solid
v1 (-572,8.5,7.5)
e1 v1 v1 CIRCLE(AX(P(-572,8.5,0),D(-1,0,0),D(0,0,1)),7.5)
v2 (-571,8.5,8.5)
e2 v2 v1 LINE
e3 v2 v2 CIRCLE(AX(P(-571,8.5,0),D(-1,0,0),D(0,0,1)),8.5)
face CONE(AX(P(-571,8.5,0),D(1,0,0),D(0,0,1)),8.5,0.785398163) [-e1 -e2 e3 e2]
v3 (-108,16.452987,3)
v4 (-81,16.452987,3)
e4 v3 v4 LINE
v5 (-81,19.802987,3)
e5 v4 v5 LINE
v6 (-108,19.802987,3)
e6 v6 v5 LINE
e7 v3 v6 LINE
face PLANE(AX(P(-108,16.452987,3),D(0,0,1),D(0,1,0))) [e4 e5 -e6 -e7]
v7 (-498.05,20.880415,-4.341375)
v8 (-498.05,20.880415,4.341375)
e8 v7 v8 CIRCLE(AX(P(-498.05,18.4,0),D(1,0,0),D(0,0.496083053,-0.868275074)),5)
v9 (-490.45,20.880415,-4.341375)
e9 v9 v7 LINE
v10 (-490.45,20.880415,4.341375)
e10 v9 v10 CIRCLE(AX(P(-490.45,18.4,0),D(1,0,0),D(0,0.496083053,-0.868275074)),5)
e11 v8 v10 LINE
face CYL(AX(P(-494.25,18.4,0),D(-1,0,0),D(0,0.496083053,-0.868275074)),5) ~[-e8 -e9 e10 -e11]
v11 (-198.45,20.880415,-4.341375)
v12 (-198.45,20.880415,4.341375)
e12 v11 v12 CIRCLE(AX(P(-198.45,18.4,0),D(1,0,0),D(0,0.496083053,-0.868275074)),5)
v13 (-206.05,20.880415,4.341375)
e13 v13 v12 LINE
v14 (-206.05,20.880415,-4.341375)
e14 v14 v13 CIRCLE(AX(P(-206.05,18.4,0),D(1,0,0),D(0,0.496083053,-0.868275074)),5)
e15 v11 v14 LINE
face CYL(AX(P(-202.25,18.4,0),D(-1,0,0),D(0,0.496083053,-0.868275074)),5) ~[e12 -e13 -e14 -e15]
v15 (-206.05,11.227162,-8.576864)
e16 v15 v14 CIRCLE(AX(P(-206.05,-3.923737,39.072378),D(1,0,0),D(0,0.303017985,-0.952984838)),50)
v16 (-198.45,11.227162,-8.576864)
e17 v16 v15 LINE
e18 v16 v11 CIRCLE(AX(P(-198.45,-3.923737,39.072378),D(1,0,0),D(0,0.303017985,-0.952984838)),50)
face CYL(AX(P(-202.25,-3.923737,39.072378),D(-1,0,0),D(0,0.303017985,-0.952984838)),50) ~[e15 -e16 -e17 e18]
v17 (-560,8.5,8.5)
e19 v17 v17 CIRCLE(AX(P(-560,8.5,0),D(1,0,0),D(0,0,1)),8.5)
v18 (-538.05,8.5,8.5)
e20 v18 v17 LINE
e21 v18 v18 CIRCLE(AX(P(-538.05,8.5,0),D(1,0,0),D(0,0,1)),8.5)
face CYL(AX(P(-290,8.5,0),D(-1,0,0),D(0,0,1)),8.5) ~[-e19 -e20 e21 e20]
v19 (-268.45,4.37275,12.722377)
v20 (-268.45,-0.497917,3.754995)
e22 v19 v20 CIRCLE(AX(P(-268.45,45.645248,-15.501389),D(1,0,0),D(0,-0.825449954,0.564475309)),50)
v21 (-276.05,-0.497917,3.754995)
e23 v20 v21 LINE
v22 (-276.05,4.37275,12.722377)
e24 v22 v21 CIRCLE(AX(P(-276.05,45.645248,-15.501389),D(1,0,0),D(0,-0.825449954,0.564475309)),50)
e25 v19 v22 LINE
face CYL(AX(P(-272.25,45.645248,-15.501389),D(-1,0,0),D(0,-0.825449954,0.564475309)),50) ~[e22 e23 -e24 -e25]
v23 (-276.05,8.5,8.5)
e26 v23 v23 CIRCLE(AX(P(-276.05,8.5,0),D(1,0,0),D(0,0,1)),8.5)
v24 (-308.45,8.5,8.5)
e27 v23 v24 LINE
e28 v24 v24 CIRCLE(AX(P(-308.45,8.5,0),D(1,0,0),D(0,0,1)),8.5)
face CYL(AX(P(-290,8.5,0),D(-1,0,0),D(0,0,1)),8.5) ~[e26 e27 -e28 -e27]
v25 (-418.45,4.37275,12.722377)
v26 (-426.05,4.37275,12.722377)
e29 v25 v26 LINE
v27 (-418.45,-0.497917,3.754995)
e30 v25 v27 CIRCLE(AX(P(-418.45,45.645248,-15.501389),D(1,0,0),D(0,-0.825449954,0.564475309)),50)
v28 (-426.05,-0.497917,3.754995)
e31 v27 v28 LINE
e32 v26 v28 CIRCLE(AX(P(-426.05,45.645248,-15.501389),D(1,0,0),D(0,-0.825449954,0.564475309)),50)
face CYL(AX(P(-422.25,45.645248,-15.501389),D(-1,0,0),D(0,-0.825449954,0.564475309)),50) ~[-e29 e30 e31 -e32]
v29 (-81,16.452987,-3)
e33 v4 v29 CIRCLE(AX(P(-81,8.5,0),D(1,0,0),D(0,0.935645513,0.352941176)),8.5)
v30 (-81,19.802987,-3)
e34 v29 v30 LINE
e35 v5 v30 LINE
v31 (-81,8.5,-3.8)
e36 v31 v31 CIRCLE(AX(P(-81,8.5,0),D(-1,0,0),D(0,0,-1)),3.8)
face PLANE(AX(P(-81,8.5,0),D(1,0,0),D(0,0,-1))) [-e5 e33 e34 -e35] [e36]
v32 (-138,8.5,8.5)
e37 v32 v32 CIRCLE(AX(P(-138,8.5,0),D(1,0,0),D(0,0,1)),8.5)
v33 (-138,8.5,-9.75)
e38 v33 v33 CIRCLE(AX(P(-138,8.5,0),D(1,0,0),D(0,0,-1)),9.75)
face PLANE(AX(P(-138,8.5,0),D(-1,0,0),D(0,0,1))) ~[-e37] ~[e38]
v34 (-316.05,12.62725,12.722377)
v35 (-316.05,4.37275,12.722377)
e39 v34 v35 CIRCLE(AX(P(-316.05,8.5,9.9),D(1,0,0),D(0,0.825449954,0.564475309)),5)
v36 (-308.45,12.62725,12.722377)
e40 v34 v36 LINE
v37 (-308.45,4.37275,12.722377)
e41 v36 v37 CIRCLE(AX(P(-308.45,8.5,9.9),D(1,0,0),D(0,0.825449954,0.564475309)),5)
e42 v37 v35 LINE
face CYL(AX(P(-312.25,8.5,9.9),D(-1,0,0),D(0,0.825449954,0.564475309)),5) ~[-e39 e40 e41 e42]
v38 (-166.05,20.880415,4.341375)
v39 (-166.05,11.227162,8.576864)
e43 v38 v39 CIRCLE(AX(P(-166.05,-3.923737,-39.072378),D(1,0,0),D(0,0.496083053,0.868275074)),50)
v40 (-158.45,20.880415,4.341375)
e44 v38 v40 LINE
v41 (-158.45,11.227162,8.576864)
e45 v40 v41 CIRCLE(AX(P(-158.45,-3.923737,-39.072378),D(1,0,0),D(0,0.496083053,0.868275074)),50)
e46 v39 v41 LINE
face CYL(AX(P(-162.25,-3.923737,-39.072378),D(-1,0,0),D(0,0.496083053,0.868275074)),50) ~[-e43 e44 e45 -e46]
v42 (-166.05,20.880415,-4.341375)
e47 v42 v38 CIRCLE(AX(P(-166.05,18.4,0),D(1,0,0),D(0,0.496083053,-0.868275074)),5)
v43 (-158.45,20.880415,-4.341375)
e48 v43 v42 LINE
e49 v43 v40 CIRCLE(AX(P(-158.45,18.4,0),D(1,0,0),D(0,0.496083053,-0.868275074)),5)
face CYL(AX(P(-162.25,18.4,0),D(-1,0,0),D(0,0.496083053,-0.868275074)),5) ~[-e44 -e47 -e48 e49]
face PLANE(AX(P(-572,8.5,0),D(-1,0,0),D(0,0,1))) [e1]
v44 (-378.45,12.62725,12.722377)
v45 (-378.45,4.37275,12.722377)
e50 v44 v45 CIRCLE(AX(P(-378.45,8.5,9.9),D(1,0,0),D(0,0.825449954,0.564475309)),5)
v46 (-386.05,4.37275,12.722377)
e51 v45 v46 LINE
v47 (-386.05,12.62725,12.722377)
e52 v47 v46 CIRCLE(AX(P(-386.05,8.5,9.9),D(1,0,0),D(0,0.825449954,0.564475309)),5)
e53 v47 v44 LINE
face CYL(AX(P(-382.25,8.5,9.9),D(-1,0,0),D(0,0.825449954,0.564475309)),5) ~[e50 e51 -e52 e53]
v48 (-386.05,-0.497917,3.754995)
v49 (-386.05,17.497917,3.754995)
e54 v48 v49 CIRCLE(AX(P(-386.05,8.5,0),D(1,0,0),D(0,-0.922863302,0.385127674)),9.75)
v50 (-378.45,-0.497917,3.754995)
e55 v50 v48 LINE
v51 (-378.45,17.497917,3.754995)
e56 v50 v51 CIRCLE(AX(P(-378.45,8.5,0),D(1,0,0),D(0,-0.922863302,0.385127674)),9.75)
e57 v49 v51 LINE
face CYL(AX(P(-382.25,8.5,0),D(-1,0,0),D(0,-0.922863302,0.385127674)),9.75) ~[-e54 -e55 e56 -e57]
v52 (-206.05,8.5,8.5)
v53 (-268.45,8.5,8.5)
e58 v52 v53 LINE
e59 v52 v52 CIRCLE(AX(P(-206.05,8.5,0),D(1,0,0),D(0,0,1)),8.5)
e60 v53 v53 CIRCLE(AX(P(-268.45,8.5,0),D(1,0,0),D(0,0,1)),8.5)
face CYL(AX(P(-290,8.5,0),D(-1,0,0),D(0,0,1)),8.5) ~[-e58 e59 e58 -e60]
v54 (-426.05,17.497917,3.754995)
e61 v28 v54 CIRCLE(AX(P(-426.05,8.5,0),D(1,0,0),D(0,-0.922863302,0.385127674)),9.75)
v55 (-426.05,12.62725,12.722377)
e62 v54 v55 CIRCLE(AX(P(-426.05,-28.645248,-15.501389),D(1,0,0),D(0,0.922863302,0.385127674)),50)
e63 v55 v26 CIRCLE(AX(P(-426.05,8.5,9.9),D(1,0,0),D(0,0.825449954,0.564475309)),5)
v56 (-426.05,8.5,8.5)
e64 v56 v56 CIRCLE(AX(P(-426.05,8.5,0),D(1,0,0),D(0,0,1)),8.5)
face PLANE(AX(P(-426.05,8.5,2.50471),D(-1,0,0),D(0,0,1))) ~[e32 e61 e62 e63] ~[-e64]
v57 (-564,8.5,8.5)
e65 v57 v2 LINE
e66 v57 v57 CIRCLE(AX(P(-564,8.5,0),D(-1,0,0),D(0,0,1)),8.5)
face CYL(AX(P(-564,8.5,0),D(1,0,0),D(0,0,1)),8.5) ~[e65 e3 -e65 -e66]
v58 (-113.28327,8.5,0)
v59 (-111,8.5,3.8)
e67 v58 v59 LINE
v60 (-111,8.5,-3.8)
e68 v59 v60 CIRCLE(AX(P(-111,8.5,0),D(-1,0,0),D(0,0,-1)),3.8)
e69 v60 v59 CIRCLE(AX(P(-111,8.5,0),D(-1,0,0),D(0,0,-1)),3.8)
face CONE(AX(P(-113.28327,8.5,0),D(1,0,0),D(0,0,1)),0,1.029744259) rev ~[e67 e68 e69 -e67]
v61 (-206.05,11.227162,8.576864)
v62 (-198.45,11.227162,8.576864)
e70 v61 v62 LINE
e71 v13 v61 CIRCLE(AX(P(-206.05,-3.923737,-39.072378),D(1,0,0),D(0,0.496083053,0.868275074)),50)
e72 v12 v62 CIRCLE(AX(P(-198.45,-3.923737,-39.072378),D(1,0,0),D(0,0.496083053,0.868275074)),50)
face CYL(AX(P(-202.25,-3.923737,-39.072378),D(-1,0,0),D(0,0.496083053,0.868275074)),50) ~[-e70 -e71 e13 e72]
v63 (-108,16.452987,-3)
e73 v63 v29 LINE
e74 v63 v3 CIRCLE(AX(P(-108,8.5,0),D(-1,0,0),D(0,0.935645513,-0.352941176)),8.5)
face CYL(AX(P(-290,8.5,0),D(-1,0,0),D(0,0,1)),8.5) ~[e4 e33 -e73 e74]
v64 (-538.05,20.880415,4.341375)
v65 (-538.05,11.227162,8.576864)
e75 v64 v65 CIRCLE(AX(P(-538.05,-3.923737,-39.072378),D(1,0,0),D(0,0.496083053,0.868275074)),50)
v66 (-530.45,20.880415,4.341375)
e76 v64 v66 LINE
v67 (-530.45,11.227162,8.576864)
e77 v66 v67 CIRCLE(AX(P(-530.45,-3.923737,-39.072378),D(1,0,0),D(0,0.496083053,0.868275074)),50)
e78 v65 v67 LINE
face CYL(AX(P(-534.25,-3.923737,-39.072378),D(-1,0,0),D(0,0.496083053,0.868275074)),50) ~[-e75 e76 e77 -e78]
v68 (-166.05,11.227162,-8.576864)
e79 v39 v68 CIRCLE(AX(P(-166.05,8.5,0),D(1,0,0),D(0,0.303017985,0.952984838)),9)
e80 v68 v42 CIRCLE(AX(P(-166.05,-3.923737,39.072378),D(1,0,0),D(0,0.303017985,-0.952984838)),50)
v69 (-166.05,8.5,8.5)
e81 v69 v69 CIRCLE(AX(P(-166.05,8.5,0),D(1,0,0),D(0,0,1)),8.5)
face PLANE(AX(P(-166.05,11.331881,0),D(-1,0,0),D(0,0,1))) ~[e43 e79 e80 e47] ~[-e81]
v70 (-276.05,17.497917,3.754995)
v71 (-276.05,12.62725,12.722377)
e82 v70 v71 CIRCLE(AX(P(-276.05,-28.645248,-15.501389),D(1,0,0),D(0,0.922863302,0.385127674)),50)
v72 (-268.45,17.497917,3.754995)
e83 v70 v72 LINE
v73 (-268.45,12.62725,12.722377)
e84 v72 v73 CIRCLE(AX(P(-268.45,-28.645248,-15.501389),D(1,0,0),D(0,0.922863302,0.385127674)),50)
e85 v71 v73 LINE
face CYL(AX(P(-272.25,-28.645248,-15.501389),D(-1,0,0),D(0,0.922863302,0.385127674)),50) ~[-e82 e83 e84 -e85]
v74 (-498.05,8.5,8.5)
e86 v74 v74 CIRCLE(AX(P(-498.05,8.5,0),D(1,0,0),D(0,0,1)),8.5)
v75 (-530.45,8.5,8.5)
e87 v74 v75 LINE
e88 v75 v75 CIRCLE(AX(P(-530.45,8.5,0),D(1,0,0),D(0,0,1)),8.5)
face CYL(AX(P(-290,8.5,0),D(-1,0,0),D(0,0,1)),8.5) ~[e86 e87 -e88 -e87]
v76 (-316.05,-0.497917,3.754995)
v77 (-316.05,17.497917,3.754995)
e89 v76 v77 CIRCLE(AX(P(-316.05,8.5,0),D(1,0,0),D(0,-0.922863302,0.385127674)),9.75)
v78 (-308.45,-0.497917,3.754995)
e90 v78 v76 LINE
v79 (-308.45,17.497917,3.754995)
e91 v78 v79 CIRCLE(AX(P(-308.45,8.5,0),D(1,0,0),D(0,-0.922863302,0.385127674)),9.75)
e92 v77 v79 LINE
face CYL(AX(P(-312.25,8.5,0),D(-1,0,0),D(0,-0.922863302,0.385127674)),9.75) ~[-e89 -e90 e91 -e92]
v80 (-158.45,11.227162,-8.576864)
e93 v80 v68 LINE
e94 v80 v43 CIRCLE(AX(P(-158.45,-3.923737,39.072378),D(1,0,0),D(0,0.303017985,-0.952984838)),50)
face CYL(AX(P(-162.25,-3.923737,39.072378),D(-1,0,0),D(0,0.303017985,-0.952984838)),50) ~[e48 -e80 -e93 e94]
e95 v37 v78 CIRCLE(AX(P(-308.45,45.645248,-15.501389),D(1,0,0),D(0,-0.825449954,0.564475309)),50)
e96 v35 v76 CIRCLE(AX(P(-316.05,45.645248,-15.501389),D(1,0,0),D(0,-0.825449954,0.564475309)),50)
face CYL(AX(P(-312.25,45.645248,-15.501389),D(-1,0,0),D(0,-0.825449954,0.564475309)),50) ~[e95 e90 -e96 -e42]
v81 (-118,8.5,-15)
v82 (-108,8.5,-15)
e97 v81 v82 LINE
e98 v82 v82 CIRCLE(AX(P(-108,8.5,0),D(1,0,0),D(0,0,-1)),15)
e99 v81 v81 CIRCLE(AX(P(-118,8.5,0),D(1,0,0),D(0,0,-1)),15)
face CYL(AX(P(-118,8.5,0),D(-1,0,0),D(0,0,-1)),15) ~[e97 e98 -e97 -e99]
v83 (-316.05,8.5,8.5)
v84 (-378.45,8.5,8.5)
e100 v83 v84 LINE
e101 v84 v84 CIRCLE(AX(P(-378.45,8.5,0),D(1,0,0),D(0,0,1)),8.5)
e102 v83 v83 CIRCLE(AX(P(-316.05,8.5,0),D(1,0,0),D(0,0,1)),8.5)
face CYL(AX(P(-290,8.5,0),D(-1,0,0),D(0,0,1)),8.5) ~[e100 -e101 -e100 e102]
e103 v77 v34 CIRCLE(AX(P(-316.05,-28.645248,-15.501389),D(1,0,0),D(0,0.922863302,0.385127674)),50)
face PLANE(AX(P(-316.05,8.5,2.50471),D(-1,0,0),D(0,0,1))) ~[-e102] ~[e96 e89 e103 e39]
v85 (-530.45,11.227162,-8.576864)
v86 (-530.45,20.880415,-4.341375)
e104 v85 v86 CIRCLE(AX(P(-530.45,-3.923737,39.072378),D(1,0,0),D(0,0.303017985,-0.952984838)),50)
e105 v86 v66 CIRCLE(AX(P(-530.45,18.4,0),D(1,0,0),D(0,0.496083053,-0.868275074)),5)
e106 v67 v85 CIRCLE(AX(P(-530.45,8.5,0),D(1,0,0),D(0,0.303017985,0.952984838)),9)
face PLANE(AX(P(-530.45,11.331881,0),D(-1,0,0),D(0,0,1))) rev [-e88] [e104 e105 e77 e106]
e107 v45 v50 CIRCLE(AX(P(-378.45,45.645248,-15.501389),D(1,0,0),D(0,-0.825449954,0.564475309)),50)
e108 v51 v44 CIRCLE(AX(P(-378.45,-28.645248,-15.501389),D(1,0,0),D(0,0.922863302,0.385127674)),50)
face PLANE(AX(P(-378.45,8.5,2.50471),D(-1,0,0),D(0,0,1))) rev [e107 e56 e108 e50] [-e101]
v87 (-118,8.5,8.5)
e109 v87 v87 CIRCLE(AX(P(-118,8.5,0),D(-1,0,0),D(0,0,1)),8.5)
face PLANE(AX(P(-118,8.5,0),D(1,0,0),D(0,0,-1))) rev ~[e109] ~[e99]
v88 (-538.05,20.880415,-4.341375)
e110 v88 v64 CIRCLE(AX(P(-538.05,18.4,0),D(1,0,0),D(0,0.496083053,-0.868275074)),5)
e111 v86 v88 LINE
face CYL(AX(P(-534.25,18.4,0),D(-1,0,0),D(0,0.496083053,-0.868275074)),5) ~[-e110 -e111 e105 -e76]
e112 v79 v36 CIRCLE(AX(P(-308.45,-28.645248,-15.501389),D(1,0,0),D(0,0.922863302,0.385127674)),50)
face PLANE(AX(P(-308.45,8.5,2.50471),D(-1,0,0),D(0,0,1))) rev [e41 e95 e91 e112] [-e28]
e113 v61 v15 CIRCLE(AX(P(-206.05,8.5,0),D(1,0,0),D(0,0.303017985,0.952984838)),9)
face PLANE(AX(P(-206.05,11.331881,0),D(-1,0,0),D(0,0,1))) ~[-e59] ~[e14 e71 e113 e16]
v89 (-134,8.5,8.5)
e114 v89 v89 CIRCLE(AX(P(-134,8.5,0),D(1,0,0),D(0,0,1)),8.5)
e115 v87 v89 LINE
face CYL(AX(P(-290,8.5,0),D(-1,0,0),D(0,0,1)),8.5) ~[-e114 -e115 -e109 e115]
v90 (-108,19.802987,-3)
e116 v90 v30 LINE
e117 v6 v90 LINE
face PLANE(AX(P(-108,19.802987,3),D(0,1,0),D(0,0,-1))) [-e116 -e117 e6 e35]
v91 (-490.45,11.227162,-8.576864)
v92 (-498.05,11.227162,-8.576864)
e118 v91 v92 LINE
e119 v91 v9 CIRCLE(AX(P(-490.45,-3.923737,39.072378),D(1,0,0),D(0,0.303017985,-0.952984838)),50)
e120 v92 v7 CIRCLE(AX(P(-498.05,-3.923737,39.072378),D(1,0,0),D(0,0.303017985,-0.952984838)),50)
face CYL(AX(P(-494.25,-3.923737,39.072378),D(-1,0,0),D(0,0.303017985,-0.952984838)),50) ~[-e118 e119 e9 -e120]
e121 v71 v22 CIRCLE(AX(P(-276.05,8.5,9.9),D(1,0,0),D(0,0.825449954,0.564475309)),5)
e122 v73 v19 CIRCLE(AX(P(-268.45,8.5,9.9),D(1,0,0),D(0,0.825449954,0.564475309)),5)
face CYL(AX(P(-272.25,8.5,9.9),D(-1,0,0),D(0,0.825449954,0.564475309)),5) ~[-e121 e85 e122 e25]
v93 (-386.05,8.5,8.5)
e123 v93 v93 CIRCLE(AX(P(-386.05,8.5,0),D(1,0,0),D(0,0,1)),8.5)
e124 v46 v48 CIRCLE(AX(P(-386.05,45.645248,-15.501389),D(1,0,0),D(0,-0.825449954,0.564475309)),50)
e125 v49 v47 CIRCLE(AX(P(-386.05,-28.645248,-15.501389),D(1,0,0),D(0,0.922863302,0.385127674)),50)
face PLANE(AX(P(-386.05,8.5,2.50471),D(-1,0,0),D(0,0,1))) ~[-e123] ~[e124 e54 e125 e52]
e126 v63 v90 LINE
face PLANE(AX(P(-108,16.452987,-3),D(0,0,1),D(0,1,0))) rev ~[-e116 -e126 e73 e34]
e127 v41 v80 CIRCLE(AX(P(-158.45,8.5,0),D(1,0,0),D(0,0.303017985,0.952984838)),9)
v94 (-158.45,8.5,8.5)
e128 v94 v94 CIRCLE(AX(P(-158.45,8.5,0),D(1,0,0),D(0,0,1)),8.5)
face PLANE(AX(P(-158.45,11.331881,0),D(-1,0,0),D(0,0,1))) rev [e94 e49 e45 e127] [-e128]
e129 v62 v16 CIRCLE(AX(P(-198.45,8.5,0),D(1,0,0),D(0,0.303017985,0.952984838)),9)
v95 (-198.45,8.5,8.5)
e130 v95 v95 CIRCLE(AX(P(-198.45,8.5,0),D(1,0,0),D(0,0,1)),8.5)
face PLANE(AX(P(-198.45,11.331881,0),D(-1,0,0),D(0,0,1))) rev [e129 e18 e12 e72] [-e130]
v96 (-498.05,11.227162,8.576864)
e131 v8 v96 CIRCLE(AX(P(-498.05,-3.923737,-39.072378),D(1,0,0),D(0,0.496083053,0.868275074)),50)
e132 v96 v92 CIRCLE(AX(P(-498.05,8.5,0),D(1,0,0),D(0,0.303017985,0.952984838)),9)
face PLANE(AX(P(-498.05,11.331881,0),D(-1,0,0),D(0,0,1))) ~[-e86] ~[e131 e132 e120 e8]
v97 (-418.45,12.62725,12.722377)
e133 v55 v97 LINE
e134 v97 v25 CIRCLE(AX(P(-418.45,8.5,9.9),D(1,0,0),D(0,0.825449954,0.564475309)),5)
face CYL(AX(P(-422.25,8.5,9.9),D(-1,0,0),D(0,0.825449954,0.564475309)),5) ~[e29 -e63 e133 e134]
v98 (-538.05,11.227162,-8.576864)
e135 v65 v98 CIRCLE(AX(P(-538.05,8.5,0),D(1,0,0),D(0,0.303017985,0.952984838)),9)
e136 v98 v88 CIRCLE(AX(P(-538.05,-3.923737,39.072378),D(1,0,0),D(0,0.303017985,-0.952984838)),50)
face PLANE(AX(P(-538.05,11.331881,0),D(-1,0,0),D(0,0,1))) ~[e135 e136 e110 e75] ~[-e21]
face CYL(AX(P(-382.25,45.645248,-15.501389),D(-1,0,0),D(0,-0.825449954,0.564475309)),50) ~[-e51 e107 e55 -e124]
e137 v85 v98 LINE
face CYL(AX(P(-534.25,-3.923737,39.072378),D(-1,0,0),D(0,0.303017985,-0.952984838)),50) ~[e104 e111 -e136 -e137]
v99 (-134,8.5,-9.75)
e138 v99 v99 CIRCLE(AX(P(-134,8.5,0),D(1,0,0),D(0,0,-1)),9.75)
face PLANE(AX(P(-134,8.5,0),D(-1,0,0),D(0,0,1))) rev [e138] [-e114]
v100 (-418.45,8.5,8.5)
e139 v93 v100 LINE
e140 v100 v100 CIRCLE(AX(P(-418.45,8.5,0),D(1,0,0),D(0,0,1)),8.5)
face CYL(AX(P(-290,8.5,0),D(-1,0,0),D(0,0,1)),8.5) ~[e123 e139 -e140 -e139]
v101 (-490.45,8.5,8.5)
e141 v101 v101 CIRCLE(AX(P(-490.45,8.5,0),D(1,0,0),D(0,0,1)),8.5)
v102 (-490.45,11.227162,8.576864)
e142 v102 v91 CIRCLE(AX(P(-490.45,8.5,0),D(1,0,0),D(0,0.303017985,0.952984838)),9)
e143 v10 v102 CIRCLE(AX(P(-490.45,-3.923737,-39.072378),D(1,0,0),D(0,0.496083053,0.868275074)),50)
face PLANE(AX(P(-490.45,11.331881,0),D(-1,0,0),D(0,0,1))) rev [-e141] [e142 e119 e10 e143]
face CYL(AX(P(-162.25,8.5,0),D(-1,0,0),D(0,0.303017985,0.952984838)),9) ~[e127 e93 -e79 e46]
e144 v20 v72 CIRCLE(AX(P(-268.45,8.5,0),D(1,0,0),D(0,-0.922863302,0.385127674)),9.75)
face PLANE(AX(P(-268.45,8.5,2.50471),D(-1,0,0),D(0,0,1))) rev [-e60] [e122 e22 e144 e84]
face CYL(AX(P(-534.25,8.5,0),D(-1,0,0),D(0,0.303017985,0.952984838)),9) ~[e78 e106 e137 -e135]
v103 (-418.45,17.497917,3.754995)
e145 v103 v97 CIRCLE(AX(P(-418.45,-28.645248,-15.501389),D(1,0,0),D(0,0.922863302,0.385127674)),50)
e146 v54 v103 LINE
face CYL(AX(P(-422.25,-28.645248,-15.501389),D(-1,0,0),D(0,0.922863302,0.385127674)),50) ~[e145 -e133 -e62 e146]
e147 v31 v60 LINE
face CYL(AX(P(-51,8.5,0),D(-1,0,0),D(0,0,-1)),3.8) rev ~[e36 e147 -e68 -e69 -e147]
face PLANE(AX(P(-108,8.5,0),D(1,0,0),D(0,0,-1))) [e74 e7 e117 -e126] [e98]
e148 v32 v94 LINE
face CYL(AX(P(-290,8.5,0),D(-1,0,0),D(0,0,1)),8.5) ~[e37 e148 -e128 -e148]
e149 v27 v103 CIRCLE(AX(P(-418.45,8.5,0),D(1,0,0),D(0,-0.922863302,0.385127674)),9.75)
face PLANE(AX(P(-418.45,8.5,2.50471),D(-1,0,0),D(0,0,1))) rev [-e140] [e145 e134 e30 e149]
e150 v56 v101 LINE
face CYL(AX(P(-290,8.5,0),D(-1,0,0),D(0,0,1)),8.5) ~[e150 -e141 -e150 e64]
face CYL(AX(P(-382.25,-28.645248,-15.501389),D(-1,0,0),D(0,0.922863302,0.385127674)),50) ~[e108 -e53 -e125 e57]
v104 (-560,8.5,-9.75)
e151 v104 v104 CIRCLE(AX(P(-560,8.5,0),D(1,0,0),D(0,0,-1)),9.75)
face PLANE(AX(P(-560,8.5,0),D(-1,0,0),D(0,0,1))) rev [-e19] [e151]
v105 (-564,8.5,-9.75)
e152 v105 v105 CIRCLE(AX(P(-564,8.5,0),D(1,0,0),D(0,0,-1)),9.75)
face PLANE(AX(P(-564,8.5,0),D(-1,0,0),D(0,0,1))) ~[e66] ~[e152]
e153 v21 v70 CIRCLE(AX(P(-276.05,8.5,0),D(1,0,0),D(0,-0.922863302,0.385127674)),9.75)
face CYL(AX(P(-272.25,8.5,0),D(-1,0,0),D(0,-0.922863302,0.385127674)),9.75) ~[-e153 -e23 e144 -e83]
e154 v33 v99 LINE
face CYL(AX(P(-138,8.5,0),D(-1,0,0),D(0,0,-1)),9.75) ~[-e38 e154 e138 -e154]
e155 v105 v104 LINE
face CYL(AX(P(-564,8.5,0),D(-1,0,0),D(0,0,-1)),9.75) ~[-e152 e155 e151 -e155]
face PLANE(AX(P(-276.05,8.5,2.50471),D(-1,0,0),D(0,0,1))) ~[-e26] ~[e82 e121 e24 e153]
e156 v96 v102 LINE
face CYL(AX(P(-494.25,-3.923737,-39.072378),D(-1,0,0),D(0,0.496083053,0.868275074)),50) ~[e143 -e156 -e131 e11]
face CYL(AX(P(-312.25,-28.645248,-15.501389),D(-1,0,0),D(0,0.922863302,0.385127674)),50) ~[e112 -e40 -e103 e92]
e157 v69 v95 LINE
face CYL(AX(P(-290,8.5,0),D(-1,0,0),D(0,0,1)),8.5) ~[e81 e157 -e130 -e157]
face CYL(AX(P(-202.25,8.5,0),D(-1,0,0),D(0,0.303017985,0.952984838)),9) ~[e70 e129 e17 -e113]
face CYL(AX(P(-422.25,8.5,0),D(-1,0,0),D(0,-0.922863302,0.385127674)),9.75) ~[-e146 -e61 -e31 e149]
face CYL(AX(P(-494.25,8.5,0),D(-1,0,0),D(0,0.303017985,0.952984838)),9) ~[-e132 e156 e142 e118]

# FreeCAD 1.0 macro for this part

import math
import FreeCAD as App
import Part
import Sketcher
from FreeCAD import Vector
Q = App.Units.Quantity


def edges_at(feature, points):
    """Names of the edges that pass closest to the given points."""
    edges = feature.Shape.Edges
    near = lambda p: min(range(len(edges)), key=lambda i: edges[i].distToShape(Part.Vertex(*p))[0])
    return sorted({f"Edge{near(p) + 1}" for p in points})

doc = App.newDocument("Part")
params = doc.addObject("Spreadsheet::Sheet", "Params")
for row, (alias, value) in enumerate([
    ("sketch1_width", "580 mm"),
    ("sketch1_height", "8.5 mm"),
    ("revolution_angle", "360 deg"),
    ("sketch2_diameter", "19.5 mm"),
    ("pad1_length", "4 mm"),
    ("linearpattern_pitch", "442 mm"),
    ("sketch3_radius", "9 mm"),
    ("sketch3_radius2", "50 mm"),
    ("sketch3_radius3", "5 mm"),
    ("pad2_length", "7.6 mm"),
    ("linearpattern2_pitch", "40 mm"),
    ("linearpattern3_pitch", "332 mm"),
    ("sketch4_radius", "9 mm"),
    ("sketch4_radius2", "50 mm"),
    ("sketch4_radius3", "5 mm"),
    ("pad3_length", "7.6 mm"),
    ("sketch5_diameter", "17 mm"),
    ("sketch5_radius", "5 mm"),
    ("sketch5_radius2", "50 mm"),
    ("sketch5_radius3", "9.75 mm"),
    ("pad4_length", "7.6 mm"),
    ("linearpattern4_pitch", "40 mm"),
    ("linearpattern5_pitch", "110 mm"),
    ("sketch6_diameter", "17 mm"),
    ("sketch6_radius", "5 mm"),
    ("sketch6_radius2", "50 mm"),
    ("sketch6_radius3", "9.75 mm"),
    ("pad5_length", "7.6 mm"),
    ("sketch7_diameter", "20 mm"),
    ("pocket1_length", "36 mm"),
    ("sketch8_diameter", "19.5 mm"),
    ("pad6_length", "4 mm"),
    ("sketch9_diameter", "17 mm"),
    ("pad7_length", "8 mm"),
    ("chamfer_size", "1 mm"),
    ("sketch10_diameter", "30 mm"),
    ("pad8_length", "5 mm"),
    ("pad8_length2", "5 mm"),
    ("sketch11_height", "6 mm"),
    ("sketch11_width", "3.35 mm"),
    ("pad9_length", "40 mm"),
    ("pocket2_length", "81 mm"),
    ("sketch13_diameter", "7.6 mm"),
    ("hole_diameter", "7.6 mm"),
    ("hole_depth", "30 mm"),
], start=1):
    params.set(f"A{row}", alias)
    params.set(f"B{row}", "=" + value)
    params.setAlias(f"B{row}", alias)

body = doc.addObject("PartDesign::Body", "Body")

# Sketch on XY plane
sketch1 = body.newObject("Sketcher::SketchObject", "Sketch")
sketch1.AttachmentSupport = (doc.getObject("XY_Plane"), [""])
sketch1.MapMode = "FlatFace"
sketch1.addGeometry([
    Part.LineSegment(Vector(0, 8.5, 0), Vector(0, 0, 0)),
    Part.LineSegment(Vector(0, 0, 0), Vector(580, 0, 0)),
    Part.LineSegment(Vector(580, 0, 0), Vector(580, 8.5, 0)),
    Part.LineSegment(Vector(580, 8.5, 0), Vector(0, 8.5, 0)),
], False)
sketch1.addGeometry(Part.LineSegment(Vector(0, 8.5, 0), Vector(580, 8.5, 0)), True)  # axis
sketch1.addConstraint([
    Sketcher.Constraint("Coincident", 0, 2, 1, 1),
    Sketcher.Constraint("Coincident", 1, 2, 2, 1),
    Sketcher.Constraint("Coincident", 2, 2, 3, 1),
    Sketcher.Constraint("Coincident", 3, 2, 0, 1),
    Sketcher.Constraint("Vertical", 0),
    Sketcher.Constraint("Horizontal", 1),
    Sketcher.Constraint("Vertical", 2),
    Sketcher.Constraint("Horizontal", 3),
    Sketcher.Constraint("Horizontal", 4),
    Sketcher.Constraint("Coincident", 0, 2, -1, 1),
    Sketcher.Constraint("Coincident", 4, 1, 3, 2),
    Sketcher.Constraint("Vertical", 1, 2, 4, 2),
    Sketcher.Constraint("DistanceX", 1, 1, 1, 2, Q("580 mm")),
    Sketcher.Constraint("DistanceY", 0, 2, 0, 1, Q("8.5 mm")),
])
sketch1.setExpression("Constraints[12]", "Params.sketch1_width")
sketch1.setExpression("Constraints[13]", "Params.sketch1_height")
revolution = body.newObject("PartDesign::Revolution", "Revolution")
revolution.Profile = sketch1
revolution.ReferenceAxis = (sketch1, ["Axis0"])
revolution.setExpression("Angle", "Params.revolution_angle")

# Sketch on YZ plane
sketch2 = body.newObject("Sketcher::SketchObject", "Sketch001")
sketch2.AttachmentSupport = (doc.getObject("YZ_Plane"), [""])
sketch2.MapMode = "FlatFace"
sketch2.AttachmentOffset = App.Placement(Vector(0, 0, 580), App.Rotation())
sketch2.addGeometry(Part.Circle(Vector(8.5, 0, 0), Vector(0, 0, 1), 9.75), False)
sketch2.addConstraint([
    Sketcher.Constraint("PointOnObject", 0, 3, -1),
    Sketcher.Constraint("Diameter", 0, Q("19.5 mm")),
    Sketcher.Constraint("DistanceX", -1, 1, 0, 3, Q("8.5 mm")),
])
sketch2.setExpression("Constraints[1]", "Params.sketch2_diameter")
pad1 = body.newObject("PartDesign::Pad", "Pad")
pad1.Profile = sketch2
pad1.setExpression("Length", "Params.pad1_length")
pad1.Reversed = True
doc.recompute()

linearpattern = body.newObject("PartDesign::LinearPattern", "LinearPattern")
linearpattern.Originals = [pad1]
linearpattern.Direction = (doc.getObject("X_Axis"), [""])
linearpattern.Mode = "offset"
linearpattern.setExpression("Offset", "Params.linearpattern_pitch")
linearpattern.Occurrences = 2
linearpattern.Reversed = True
body.Tip = linearpattern

# Sketch on YZ plane
sketch3 = body.newObject("Sketcher::SketchObject", "Sketch002")
sketch3.AttachmentSupport = (doc.getObject("YZ_Plane"), [""])
sketch3.MapMode = "FlatFace"
sketch3.AttachmentOffset = App.Placement(Vector(0, 0, 162.25), App.Rotation())
sketch3.addGeometry([
    Part.ArcOfCircle(Part.Circle(Vector(8.5, 0, 0), Vector(0, 0, 1), 9), math.radians(72.361039), math.radians(287.638961)),
    Part.ArcOfCircle(Part.Circle(Vector(-3.923737, 39.072378, 0), Vector(0, 0, 1), 50), math.radians(-72.361039), math.radians(-60.258807)),
    Part.ArcOfCircle(Part.Circle(Vector(18.4, 0, 0), Vector(0, 0, 1), 5), math.radians(-60.258807), math.radians(60.258807)),
    Part.ArcOfCircle(Part.Circle(Vector(-3.923737, -39.072378, 0), Vector(0, 0, 1), 50), math.radians(60.258807), math.radians(72.361039)),
], False)
sketch3.addConstraint([
    Sketcher.Constraint("Tangent", 0, 2, 1, 1),
    Sketcher.Constraint("Tangent", 1, 2, 2, 1),
    Sketcher.Constraint("Tangent", 2, 2, 3, 1),
    Sketcher.Constraint("Tangent", 3, 2, 0, 1),
    Sketcher.Constraint("Equal", 1, 3),
    Sketcher.Constraint("Symmetric", 1, 3, 3, 3, -1),
    Sketcher.Constraint("Radius", 0, Q("9 mm")),
    Sketcher.Constraint("Radius", 1, Q("50 mm")),
    Sketcher.Constraint("Radius", 2, Q("5 mm")),
    Sketcher.Constraint("DistanceX", -1, 1, 0, 3, Q("8.5 mm")),
    Sketcher.Constraint("DistanceX", -1, 1, 2, 3, Q("18.4 mm")),
])
sketch3.setExpression("Constraints[6]", "Params.sketch3_radius")
sketch3.setExpression("Constraints[7]", "Params.sketch3_radius2")
sketch3.setExpression("Constraints[8]", "Params.sketch3_radius3")
pad2 = body.newObject("PartDesign::Pad", "Pad001")
pad2.Profile = sketch3
pad2.setExpression("Length", "Params.pad2_length")
pad2.Midplane = True
doc.recompute()

linearpattern2 = body.newObject("PartDesign::LinearPattern", "LinearPattern001")
linearpattern2.Originals = [pad2]
linearpattern2.Direction = (doc.getObject("X_Axis"), [""])
linearpattern2.Mode = "offset"
linearpattern2.setExpression("Offset", "Params.linearpattern2_pitch")
linearpattern2.Occurrences = 2
body.Tip = linearpattern2
doc.recompute()

linearpattern3 = body.newObject("PartDesign::LinearPattern", "LinearPattern002")
linearpattern3.Originals = [pad2]
linearpattern3.Direction = (doc.getObject("X_Axis"), [""])
linearpattern3.Mode = "offset"
linearpattern3.setExpression("Offset", "Params.linearpattern3_pitch")
linearpattern3.Occurrences = 2
body.Tip = linearpattern3

# Sketch on YZ plane
sketch4 = body.newObject("Sketcher::SketchObject", "Sketch003")
sketch4.AttachmentSupport = (doc.getObject("YZ_Plane"), [""])
sketch4.MapMode = "FlatFace"
sketch4.AttachmentOffset = App.Placement(Vector(0, 0, 534.25), App.Rotation())
sketch4.addGeometry([
    Part.ArcOfCircle(Part.Circle(Vector(8.5, 0, 0), Vector(0, 0, 1), 9), math.radians(72.361039), math.radians(287.638961)),
    Part.ArcOfCircle(Part.Circle(Vector(-3.923737, 39.072378, 0), Vector(0, 0, 1), 50), math.radians(-72.361039), math.radians(-60.258807)),
    Part.ArcOfCircle(Part.Circle(Vector(18.4, 0, 0), Vector(0, 0, 1), 5), math.radians(-60.258807), math.radians(60.258807)),
    Part.ArcOfCircle(Part.Circle(Vector(-3.923737, -39.072378, 0), Vector(0, 0, 1), 50), math.radians(60.258807), math.radians(72.361039)),
], False)
sketch4.addConstraint([
    Sketcher.Constraint("Tangent", 0, 2, 1, 1),
    Sketcher.Constraint("Tangent", 1, 2, 2, 1),
    Sketcher.Constraint("Tangent", 2, 2, 3, 1),
    Sketcher.Constraint("Tangent", 3, 2, 0, 1),
    Sketcher.Constraint("Equal", 1, 3),
    Sketcher.Constraint("Symmetric", 1, 3, 3, 3, -1),
    Sketcher.Constraint("Radius", 0, Q("9 mm")),
    Sketcher.Constraint("Radius", 1, Q("50 mm")),
    Sketcher.Constraint("Radius", 2, Q("5 mm")),
    Sketcher.Constraint("DistanceX", -1, 1, 0, 3, Q("8.5 mm")),
    Sketcher.Constraint("DistanceX", -1, 1, 2, 3, Q("18.4 mm")),
])
sketch4.setExpression("Constraints[6]", "Params.sketch4_radius")
sketch4.setExpression("Constraints[7]", "Params.sketch4_radius2")
sketch4.setExpression("Constraints[8]", "Params.sketch4_radius3")
pad3 = body.newObject("PartDesign::Pad", "Pad002")
pad3.Profile = sketch4
pad3.setExpression("Length", "Params.pad3_length")
pad3.Midplane = True

# Sketch on YZ plane
sketch5 = body.newObject("Sketcher::SketchObject", "Sketch004")
sketch5.AttachmentSupport = (doc.getObject("YZ_Plane"), [""])
sketch5.MapMode = "FlatFace"
sketch5.AttachmentOffset = App.Placement(Vector(0, 0, 272.25), App.Rotation())
sketch5.addGeometry([
    Part.ArcOfCircle(Part.Circle(Vector(8.5, 9.9, 0), Vector(0, 0, 1), 5), math.radians(34.365864), math.radians(145.634136)),  # 0
    Part.ArcOfCircle(Part.Circle(Vector(45.645248, -15.501389, 0), Vector(0, 0, 1), 50), math.radians(145.634136), math.radians(157.348333)),  # 1
    Part.ArcOfCircle(Part.Circle(Vector(8.5, 0, 0), Vector(0, 0, 1), 9.75), math.radians(157.348333), math.radians(382.651667)),  # 2
    Part.ArcOfCircle(Part.Circle(Vector(-28.645248, -15.501389, 0), Vector(0, 0, 1), 50), math.radians(22.651667), math.radians(34.365864)),  # 3
    Part.Circle(Vector(8.5, 0, 0), Vector(0, 0, 1), 8.5),  # 4
], False)
sketch5.addConstraint([
    Sketcher.Constraint("Tangent", 0, 2, 1, 1),
    Sketcher.Constraint("Tangent", 1, 2, 2, 1),
    Sketcher.Constraint("Tangent", 2, 2, 3, 1),
    Sketcher.Constraint("Tangent", 3, 2, 0, 1),
    Sketcher.Constraint("Coincident", 4, 3, 2, 3),
    Sketcher.Constraint("Equal", 1, 3),
    Sketcher.Constraint("PointOnObject", 2, 3, -1),
    Sketcher.Constraint("Horizontal", 1, 3, 3, 3),
    Sketcher.Constraint("Diameter", 4, Q("17 mm")),
    Sketcher.Constraint("Radius", 0, Q("5 mm")),
    Sketcher.Constraint("Radius", 1, Q("50 mm")),
    Sketcher.Constraint("Radius", 2, Q("9.75 mm")),
    Sketcher.Constraint("DistanceX", -1, 1, 0, 3, Q("8.5 mm")),
    Sketcher.Constraint("DistanceY", -1, 1, 0, 3, Q("9.9 mm")),
])
sketch5.setExpression("Constraints[8]", "Params.sketch5_diameter")
sketch5.setExpression("Constraints[9]", "Params.sketch5_radius")
sketch5.setExpression("Constraints[10]", "Params.sketch5_radius2")
sketch5.setExpression("Constraints[11]", "Params.sketch5_radius3")
pad4 = body.newObject("PartDesign::Pad", "Pad003")
pad4.Profile = sketch5
pad4.setExpression("Length", "Params.pad4_length")
pad4.Midplane = True
doc.recompute()

linearpattern4 = body.newObject("PartDesign::LinearPattern", "LinearPattern003")
linearpattern4.Originals = [pad4]
linearpattern4.Direction = (doc.getObject("X_Axis"), [""])
linearpattern4.Mode = "offset"
linearpattern4.setExpression("Offset", "Params.linearpattern4_pitch")
linearpattern4.Occurrences = 2
body.Tip = linearpattern4
doc.recompute()

linearpattern5 = body.newObject("PartDesign::LinearPattern", "LinearPattern004")
linearpattern5.Originals = [pad4]
linearpattern5.Direction = (doc.getObject("X_Axis"), [""])
linearpattern5.Mode = "offset"
linearpattern5.setExpression("Offset", "Params.linearpattern5_pitch")
linearpattern5.Occurrences = 2
body.Tip = linearpattern5

# Sketch on YZ plane
sketch6 = body.newObject("Sketcher::SketchObject", "Sketch005")
sketch6.AttachmentSupport = (doc.getObject("YZ_Plane"), [""])
sketch6.MapMode = "FlatFace"
sketch6.AttachmentOffset = App.Placement(Vector(0, 0, 422.25), App.Rotation())
sketch6.addGeometry([
    Part.ArcOfCircle(Part.Circle(Vector(8.5, 9.9, 0), Vector(0, 0, 1), 5), math.radians(34.365864), math.radians(145.634136)),  # 0
    Part.ArcOfCircle(Part.Circle(Vector(45.645248, -15.501389, 0), Vector(0, 0, 1), 50), math.radians(145.634136), math.radians(157.348333)),  # 1
    Part.ArcOfCircle(Part.Circle(Vector(8.5, 0, 0), Vector(0, 0, 1), 9.75), math.radians(157.348333), math.radians(382.651667)),  # 2
    Part.ArcOfCircle(Part.Circle(Vector(-28.645248, -15.501389, 0), Vector(0, 0, 1), 50), math.radians(22.651667), math.radians(34.365864)),  # 3
    Part.Circle(Vector(8.5, 0, 0), Vector(0, 0, 1), 8.5),  # 4
], False)
sketch6.addConstraint([
    Sketcher.Constraint("Tangent", 0, 2, 1, 1),
    Sketcher.Constraint("Tangent", 1, 2, 2, 1),
    Sketcher.Constraint("Tangent", 2, 2, 3, 1),
    Sketcher.Constraint("Tangent", 3, 2, 0, 1),
    Sketcher.Constraint("Coincident", 4, 3, 2, 3),
    Sketcher.Constraint("Equal", 1, 3),
    Sketcher.Constraint("PointOnObject", 2, 3, -1),
    Sketcher.Constraint("Horizontal", 1, 3, 3, 3),
    Sketcher.Constraint("Diameter", 4, Q("17 mm")),
    Sketcher.Constraint("Radius", 0, Q("5 mm")),
    Sketcher.Constraint("Radius", 1, Q("50 mm")),
    Sketcher.Constraint("Radius", 2, Q("9.75 mm")),
    Sketcher.Constraint("DistanceX", -1, 1, 0, 3, Q("8.5 mm")),
    Sketcher.Constraint("DistanceY", -1, 1, 0, 3, Q("9.9 mm")),
])
sketch6.setExpression("Constraints[8]", "Params.sketch6_diameter")
sketch6.setExpression("Constraints[9]", "Params.sketch6_radius")
sketch6.setExpression("Constraints[10]", "Params.sketch6_radius2")
sketch6.setExpression("Constraints[11]", "Params.sketch6_radius3")
pad5 = body.newObject("PartDesign::Pad", "Pad004")
pad5.Profile = sketch6
pad5.setExpression("Length", "Params.pad5_length")
pad5.Midplane = True

# Sketch on YZ plane
sketch7 = body.newObject("Sketcher::SketchObject", "Sketch006")
sketch7.AttachmentSupport = (doc.getObject("YZ_Plane"), [""])
sketch7.MapMode = "FlatFace"
sketch7.AttachmentOffset = App.Placement(Vector(0, 0, 564), App.Rotation())
sketch7.addGeometry(Part.Circle(Vector(8.5, 0, 0), Vector(0, 0, 1), 10), False)
sketch7.addConstraint([
    Sketcher.Constraint("PointOnObject", 0, 3, -1),
    Sketcher.Constraint("Diameter", 0, Q("20 mm")),
    Sketcher.Constraint("DistanceX", -1, 1, 0, 3, Q("8.5 mm")),
])
sketch7.setExpression("Constraints[1]", "Params.sketch7_diameter")
pocket1 = body.newObject("PartDesign::Pocket", "Pocket")
pocket1.Profile = sketch7
pocket1.setExpression("Length", "Params.pocket1_length")
pocket1.Reversed = True

# Sketch on YZ plane
sketch8 = body.newObject("Sketcher::SketchObject", "Sketch007")
sketch8.AttachmentSupport = (doc.getObject("YZ_Plane"), [""])
sketch8.MapMode = "FlatFace"
sketch8.AttachmentOffset = App.Placement(Vector(0, 0, 564), App.Rotation())
sketch8.addGeometry(Part.Circle(Vector(8.5, 0, 0), Vector(0, 0, 1), 9.75), False)
sketch8.addConstraint([
    Sketcher.Constraint("PointOnObject", 0, 3, -1),
    Sketcher.Constraint("Diameter", 0, Q("19.5 mm")),
    Sketcher.Constraint("DistanceX", -1, 1, 0, 3, Q("8.5 mm")),
])
sketch8.setExpression("Constraints[1]", "Params.sketch8_diameter")
pad6 = body.newObject("PartDesign::Pad", "Pad005")
pad6.Profile = sketch8
pad6.setExpression("Length", "Params.pad6_length")
pad6.Reversed = True
body2 = doc.addObject("PartDesign::Body", "Body001")
doc.recompute()

mirroring = doc.addObject("Part::Mirroring", "Mirroring")
mirroring.Source = body
mirroring.Base = Vector(0, 0, 0)
mirroring.Normal = Vector(-1, 0, 0)
body2.BaseFeature = mirroring
doc.recompute()

# Sketch on YZ plane
sketch9 = body2.newObject("Sketcher::SketchObject", "Sketch008")
sketch9.AttachmentSupport = (doc.getObject("YZ_Plane001"), [""])
sketch9.MapMode = "FlatFace"
sketch9.AttachmentOffset = App.Placement(Vector(0, 0, -564), App.Rotation())
sketch9.addGeometry(Part.Circle(Vector(8.5, 0, 0), Vector(0, 0, 1), 8.5), False)
sketch9.addConstraint([
    Sketcher.Constraint("PointOnObject", 0, 3, -1),
    Sketcher.Constraint("Diameter", 0, Q("17 mm")),
    Sketcher.Constraint("DistanceX", -1, 1, 0, 3, Q("8.5 mm")),
])
sketch9.setExpression("Constraints[1]", "Params.sketch9_diameter")
pad7 = body2.newObject("PartDesign::Pad", "Pad006")
pad7.Profile = sketch9
pad7.setExpression("Length", "Params.pad7_length")
pad7.Reversed = True
doc.recompute()

chamfer = body2.newObject("PartDesign::Chamfer", "Chamfer")
chamfer.Base = (pad7, edges_at(pad7, [(-572, 8.5, -8.5)]))
chamfer.setExpression("Size", "Params.chamfer_size")

# Sketch on YZ plane
sketch10 = body2.newObject("Sketcher::SketchObject", "Sketch009")
sketch10.AttachmentSupport = (doc.getObject("YZ_Plane001"), [""])
sketch10.MapMode = "FlatFace"
sketch10.AttachmentOffset = App.Placement(Vector(0, 0, -113), App.Rotation())
sketch10.addGeometry(Part.Circle(Vector(8.5, 0, 0), Vector(0, 0, 1), 15), False)
sketch10.addConstraint([
    Sketcher.Constraint("PointOnObject", 0, 3, -1),
    Sketcher.Constraint("Diameter", 0, Q("30 mm")),
    Sketcher.Constraint("DistanceX", -1, 1, 0, 3, Q("8.5 mm")),
])
sketch10.setExpression("Constraints[1]", "Params.sketch10_diameter")
pad8 = body2.newObject("PartDesign::Pad", "Pad007")
pad8.Profile = sketch10
pad8.Type = "TwoLengths"
pad8.setExpression("Length", "Params.pad8_length")
pad8.setExpression("Length2", "Params.pad8_length2")

# Sketch on YZ plane
sketch11 = body2.newObject("Sketcher::SketchObject", "Sketch010")
sketch11.AttachmentSupport = (doc.getObject("YZ_Plane001"), [""])
sketch11.MapMode = "FlatFace"
sketch11.AttachmentOffset = App.Placement(Vector(0, 0, -108), App.Rotation())
sketch11.addGeometry([
    Part.LineSegment(Vector(19.802987, 3, 0), Vector(16.452987, 3, 0)),
    Part.LineSegment(Vector(16.452987, 3, 0), Vector(16.452987, -3, 0)),
    Part.LineSegment(Vector(16.452987, -3, 0), Vector(19.802987, -3, 0)),
    Part.LineSegment(Vector(19.802987, -3, 0), Vector(19.802987, 3, 0)),
], False)
sketch11.addConstraint([
    Sketcher.Constraint("Coincident", 0, 2, 1, 1),
    Sketcher.Constraint("Coincident", 1, 2, 2, 1),
    Sketcher.Constraint("Coincident", 2, 2, 3, 1),
    Sketcher.Constraint("Coincident", 3, 2, 0, 1),
    Sketcher.Constraint("Horizontal", 0),
    Sketcher.Constraint("Vertical", 1),
    Sketcher.Constraint("Horizontal", 2),
    Sketcher.Constraint("Vertical", 3),
    Sketcher.Constraint("DistanceY", 1, 2, 1, 1, Q("6 mm")),
    Sketcher.Constraint("DistanceY", -1, 1, 0, 2, Q("3 mm")),
    Sketcher.Constraint("DistanceX", 0, 2, 0, 1, Q("3.35 mm")),
    Sketcher.Constraint("DistanceX", -1, 1, 0, 2, Q("16.452987 mm")),
])
sketch11.setExpression("Constraints[8]", "Params.sketch11_height")
sketch11.setExpression("Constraints[10]", "Params.sketch11_width")
pad9 = body2.newObject("PartDesign::Pad", "Pad008")
pad9.Profile = sketch11
pad9.setExpression("Length", "Params.pad9_length")

# Sketch on YZ plane
sketch12 = body2.newObject("Sketcher::SketchObject", "Sketch011")
sketch12.AttachmentSupport = (doc.getObject("YZ_Plane001"), [""])
sketch12.MapMode = "FlatFace"
sketch12.AttachmentOffset = App.Placement(Vector(0, 0, -81), App.Rotation())
sketch12.addGeometry(Part.Circle(Vector(8.5, 0, 0), Vector(0, 0, 1), 35.701734), False)
sketch12.addConstraint([
    Sketcher.Constraint("PointOnObject", 0, 3, -1),
    Sketcher.Constraint("DistanceX", -1, 1, 0, 3, Q("8.5 mm")),
    Sketcher.Constraint("Diameter", 0, Q("71.403469 mm")),
])
pocket2 = body2.newObject("PartDesign::Pocket", "Pocket001")
pocket2.Profile = sketch12
pocket2.setExpression("Length", "Params.pocket2_length")
pocket2.Reversed = True

# Sketch on YZ plane
sketch13 = body2.newObject("Sketcher::SketchObject", "Sketch012")
sketch13.AttachmentSupport = (doc.getObject("YZ_Plane001"), [""])
sketch13.MapMode = "FlatFace"
sketch13.AttachmentOffset = App.Placement(Vector(0, 0, -81), App.Rotation())
sketch13.addGeometry(Part.Circle(Vector(8.5, 0, 0), Vector(0, 0, 1), 3.8), False)
sketch13.addConstraint([
    Sketcher.Constraint("PointOnObject", 0, 3, -1),
    Sketcher.Constraint("Diameter", 0, Q("7.6 mm")),
    Sketcher.Constraint("DistanceX", -1, 1, 0, 3, Q("8.5 mm")),
])
sketch13.setExpression("Constraints[1]", "Params.sketch13_diameter")
doc.recompute()
hole = body2.newObject("PartDesign::Hole", "Hole")
hole.Profile = sketch13
hole.ThreadType = "None"
hole.setExpression("Diameter", "Params.hole_diameter")
hole.DepthType = "Dimension"
hole.setExpression("Depth", "Params.hole_depth")
hole.DrillPoint = "Angled"
hole.DrillPointAngle = 118
body.Visibility = False
mirroring.Visibility = False

doc.recompute()
